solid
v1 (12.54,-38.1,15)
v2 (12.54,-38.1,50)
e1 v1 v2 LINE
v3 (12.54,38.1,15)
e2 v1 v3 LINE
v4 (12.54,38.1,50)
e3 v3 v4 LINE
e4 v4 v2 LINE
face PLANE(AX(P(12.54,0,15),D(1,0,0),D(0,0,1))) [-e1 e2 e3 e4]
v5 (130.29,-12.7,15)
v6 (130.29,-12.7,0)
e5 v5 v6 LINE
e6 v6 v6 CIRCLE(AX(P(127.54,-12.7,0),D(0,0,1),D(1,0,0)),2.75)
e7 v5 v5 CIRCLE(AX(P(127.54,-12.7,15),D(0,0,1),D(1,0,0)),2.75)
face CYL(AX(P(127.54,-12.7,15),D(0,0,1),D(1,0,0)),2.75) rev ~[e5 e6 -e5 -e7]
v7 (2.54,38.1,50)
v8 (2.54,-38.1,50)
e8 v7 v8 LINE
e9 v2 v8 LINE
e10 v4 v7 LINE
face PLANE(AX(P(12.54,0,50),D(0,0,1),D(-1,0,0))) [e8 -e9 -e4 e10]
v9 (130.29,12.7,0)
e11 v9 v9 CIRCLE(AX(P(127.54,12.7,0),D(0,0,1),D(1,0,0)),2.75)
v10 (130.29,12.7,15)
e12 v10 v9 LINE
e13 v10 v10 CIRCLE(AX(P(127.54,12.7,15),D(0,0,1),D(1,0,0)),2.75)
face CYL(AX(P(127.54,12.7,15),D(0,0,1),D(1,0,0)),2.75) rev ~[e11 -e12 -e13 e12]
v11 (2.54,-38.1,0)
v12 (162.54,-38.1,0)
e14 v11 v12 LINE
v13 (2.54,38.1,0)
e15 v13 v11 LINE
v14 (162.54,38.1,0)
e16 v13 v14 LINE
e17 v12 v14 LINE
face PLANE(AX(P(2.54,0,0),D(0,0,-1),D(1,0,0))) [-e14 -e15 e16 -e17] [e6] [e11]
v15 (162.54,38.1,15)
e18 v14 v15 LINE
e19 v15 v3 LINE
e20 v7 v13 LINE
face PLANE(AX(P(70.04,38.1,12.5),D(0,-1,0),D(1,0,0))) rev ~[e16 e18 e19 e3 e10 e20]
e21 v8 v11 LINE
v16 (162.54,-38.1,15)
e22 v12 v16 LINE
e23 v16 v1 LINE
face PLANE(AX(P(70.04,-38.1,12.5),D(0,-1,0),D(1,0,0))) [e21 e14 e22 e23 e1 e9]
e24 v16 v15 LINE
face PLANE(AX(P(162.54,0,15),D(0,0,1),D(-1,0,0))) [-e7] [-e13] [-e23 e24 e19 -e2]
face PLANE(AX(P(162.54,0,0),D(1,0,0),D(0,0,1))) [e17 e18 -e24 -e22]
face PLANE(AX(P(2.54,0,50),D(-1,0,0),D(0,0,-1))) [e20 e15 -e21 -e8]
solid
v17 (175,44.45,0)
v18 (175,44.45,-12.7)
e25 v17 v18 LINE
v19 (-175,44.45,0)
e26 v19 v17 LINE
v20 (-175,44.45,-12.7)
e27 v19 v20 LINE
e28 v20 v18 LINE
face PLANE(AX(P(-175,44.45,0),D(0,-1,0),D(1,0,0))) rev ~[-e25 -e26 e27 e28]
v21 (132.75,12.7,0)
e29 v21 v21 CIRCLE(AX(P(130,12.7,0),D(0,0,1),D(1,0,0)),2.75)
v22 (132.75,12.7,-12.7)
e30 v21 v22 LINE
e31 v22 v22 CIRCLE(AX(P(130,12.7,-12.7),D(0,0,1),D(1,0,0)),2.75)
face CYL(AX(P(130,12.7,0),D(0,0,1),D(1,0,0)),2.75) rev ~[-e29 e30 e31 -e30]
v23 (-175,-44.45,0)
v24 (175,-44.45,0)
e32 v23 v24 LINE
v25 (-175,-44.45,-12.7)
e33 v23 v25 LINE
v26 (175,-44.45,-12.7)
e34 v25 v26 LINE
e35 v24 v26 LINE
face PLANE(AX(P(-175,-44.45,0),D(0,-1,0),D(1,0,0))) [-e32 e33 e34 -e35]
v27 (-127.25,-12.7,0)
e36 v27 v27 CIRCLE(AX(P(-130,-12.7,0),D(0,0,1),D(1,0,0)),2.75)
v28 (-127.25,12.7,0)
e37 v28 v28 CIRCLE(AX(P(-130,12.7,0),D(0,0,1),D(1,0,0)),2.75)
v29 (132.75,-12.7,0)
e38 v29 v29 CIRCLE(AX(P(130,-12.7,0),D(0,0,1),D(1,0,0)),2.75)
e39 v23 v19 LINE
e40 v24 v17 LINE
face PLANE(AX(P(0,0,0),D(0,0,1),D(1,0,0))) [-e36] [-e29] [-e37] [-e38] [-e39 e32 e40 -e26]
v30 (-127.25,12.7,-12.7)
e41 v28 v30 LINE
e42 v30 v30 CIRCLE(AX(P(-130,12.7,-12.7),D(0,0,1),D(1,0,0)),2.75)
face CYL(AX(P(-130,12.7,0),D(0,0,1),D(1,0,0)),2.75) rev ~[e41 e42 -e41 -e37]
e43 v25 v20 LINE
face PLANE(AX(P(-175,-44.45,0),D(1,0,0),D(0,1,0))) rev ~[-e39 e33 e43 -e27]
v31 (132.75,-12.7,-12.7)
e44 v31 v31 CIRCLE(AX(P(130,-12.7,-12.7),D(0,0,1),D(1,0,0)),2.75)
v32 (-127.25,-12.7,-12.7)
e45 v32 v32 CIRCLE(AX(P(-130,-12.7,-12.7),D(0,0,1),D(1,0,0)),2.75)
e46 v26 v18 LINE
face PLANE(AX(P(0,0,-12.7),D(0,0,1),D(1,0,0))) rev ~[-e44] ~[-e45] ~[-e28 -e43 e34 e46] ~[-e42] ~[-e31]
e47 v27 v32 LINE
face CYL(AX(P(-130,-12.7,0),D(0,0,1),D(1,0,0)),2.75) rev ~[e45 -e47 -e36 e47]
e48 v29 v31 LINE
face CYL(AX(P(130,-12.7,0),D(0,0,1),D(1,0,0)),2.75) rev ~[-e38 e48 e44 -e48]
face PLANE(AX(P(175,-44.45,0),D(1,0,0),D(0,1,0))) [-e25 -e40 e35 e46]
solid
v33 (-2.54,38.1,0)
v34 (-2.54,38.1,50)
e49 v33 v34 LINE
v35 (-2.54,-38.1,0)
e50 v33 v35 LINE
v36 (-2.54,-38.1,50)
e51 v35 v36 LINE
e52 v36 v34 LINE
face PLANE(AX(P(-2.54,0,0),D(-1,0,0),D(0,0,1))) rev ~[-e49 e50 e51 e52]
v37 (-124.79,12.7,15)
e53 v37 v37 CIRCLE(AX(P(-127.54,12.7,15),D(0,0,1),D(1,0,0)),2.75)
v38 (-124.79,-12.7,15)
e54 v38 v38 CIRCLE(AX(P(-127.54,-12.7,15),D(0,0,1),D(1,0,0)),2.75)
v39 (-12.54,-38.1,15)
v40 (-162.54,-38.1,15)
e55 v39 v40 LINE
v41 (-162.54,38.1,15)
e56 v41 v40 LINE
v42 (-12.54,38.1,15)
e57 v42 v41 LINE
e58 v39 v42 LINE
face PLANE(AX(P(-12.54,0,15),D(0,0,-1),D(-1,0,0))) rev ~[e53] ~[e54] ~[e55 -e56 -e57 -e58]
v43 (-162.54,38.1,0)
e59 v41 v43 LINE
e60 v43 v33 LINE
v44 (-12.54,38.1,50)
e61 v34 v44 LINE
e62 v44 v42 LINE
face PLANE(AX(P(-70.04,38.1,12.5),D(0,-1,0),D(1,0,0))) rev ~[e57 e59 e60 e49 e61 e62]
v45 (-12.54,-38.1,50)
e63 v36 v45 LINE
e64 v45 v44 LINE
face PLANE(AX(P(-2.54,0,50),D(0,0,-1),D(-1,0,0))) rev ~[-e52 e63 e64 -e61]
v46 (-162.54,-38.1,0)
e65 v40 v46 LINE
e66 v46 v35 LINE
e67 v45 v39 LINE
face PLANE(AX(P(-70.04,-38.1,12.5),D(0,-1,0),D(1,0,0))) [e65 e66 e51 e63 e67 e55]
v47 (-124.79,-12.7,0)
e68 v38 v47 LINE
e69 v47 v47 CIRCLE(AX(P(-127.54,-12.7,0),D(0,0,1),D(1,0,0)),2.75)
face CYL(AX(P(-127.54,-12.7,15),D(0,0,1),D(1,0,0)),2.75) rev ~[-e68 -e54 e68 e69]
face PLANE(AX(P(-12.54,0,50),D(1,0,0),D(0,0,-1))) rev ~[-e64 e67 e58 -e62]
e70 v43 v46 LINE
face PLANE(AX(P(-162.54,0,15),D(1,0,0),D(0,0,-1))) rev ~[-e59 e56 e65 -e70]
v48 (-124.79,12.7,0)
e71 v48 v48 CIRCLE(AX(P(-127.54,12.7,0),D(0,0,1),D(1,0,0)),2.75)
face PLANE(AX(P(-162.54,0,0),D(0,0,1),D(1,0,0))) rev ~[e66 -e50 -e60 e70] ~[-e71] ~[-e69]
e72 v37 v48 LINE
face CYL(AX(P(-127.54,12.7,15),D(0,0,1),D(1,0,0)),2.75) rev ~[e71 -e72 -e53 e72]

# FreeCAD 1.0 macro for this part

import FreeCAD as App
import Part
import Sketcher
from FreeCAD import Vector


def add_polygon(sketch, points):
    """Adds a closed chain of lines whose ends are joined by coincident constraints."""
    first, n = sketch.GeometryCount, len(points)
    for a, b in zip(points, points[1:] + points[:1]):
        sketch.addGeometry(Part.LineSegment(App.Vector(*a, 0), App.Vector(*b, 0)), False)
    for i in range(n):
        sketch.addConstraint(Sketcher.Constraint("Coincident", first + i, 2, first + (i + 1) % n, 1))

doc = App.newDocument("Part")
body = doc.addObject("PartDesign::Body", "Body")
body.AllowCompound = True

sketch1 = body.newObject("Sketcher::SketchObject", "Sketch")
sketch1.AttachmentSupport = (doc.getObject("XZ_Plane"), [""])
sketch1.MapMode = "FlatFace"
add_polygon(sketch1, [(-13, 15), (-163, 15), (-163, 0), (-3, 0), (-3, 50), (-13, 50)])
add_polygon(sketch1, [(13, 15), (13, 50), (3, 50), (3, 0), (163, 0), (163, 15)])
sketch1.addConstraint(Sketcher.Constraint("Horizontal", 0))
sketch1.addConstraint(Sketcher.Constraint("Vertical", 1))
sketch1.addConstraint(Sketcher.Constraint("Horizontal", 2))
sketch1.addConstraint(Sketcher.Constraint("Vertical", 3))
sketch1.addConstraint(Sketcher.Constraint("Horizontal", 4))
sketch1.addConstraint(Sketcher.Constraint("Vertical", 5))
sketch1.addConstraint(Sketcher.Constraint("Vertical", 6))
sketch1.addConstraint(Sketcher.Constraint("Horizontal", 7))
sketch1.addConstraint(Sketcher.Constraint("Vertical", 8))
sketch1.addConstraint(Sketcher.Constraint("Horizontal", 9))
sketch1.addConstraint(Sketcher.Constraint("Vertical", 10))
sketch1.addConstraint(Sketcher.Constraint("Horizontal", 11))
sketch1.addConstraint(Sketcher.Constraint("Symmetric", 2, 2, 8, 2, -1, 1))
sketch1.addConstraint(Sketcher.Constraint("Symmetric", 4, 2, 6, 2, -2))
sketch1.addConstraint(Sketcher.Constraint("Symmetric", 1, 2, 9, 2, -2))
sketch1.addConstraint(Sketcher.Constraint("Horizontal", 5, 2, 10, 2))
sketch1.addConstraint(Sketcher.Constraint("DistanceX", 0, 2, 0, 1, 150.0))
sketch1.addConstraint(Sketcher.Constraint("DistanceX", 2, 1, 2, 2, 160.0))
sketch1.addConstraint(Sketcher.Constraint("DistanceY", 1, 2, 1, 1, 15.0))
sketch1.addConstraint(Sketcher.Constraint("DistanceY", 3, 1, 3, 2, 50.0))
sketch1.addConstraint(Sketcher.Constraint("DistanceX", 0, 2, -1, 1, 162.54))
pad1 = body.newObject("PartDesign::Pad", "Pad")
pad1.Profile = sketch1
pad1.Length = 76.2
pad1.Midplane = True

sketch2 = body.newObject("Sketcher::SketchObject", "Sketch001")
sketch2.AttachmentSupport = (doc.getObject("XY_Plane"), [""])
sketch2.MapMode = "FlatFace"
sketch2.AttachmentOffset = App.Placement(Vector(0, 0, 15), App.Rotation())
sketch2.addGeometry(Part.Circle(Vector(-127.5, -12.7, 0), Vector(0, 0, 1), 2.8), False)
sketch2.addGeometry(Part.Circle(Vector(127.5, -12.7, 0), Vector(0, 0, 1), 2.8), False)
sketch2.addGeometry(Part.Circle(Vector(127.5, 12.7, 0), Vector(0, 0, 1), 2.8), False)
sketch2.addGeometry(Part.Circle(Vector(-127.5, 12.7, 0), Vector(0, 0, 1), 2.8), False)
sketch2.addConstraint(Sketcher.Constraint("Equal", 0, 1))
sketch2.addConstraint(Sketcher.Constraint("Equal", 1, 2))
sketch2.addConstraint(Sketcher.Constraint("Equal", 2, 3))
sketch2.addConstraint(Sketcher.Constraint("Symmetric", 0, 3, 2, 3, -1, 1))
sketch2.addConstraint(Sketcher.Constraint("Symmetric", 1, 3, 3, 3, -1, 1))
sketch2.addConstraint(Sketcher.Constraint("Symmetric", 0, 3, 1, 3, -2))
sketch2.addConstraint(Sketcher.Constraint("Diameter", 0, 5.5))
sketch2.addConstraint(Sketcher.Constraint("DistanceY", 0, 3, -1, 1, 12.7))
sketch2.addConstraint(Sketcher.Constraint("DistanceX", 0, 3, -1, 1, 127.54))
pocket1 = body.newObject("PartDesign::Pocket", "Pocket")
pocket1.Profile = sketch2
pocket1.Type = "ThroughAll"
body2 = doc.addObject("PartDesign::Body", "Body001")

sketch3 = body2.newObject("Sketcher::SketchObject", "Sketch002")
sketch3.AttachmentSupport = (doc.getObject("XY_Plane001"), [""])
sketch3.MapMode = "FlatFace"
add_polygon(sketch3, [(-175, 44.5), (-175, -44.5), (175, -44.5), (175, 44.5)])
sketch3.addGeometry(Part.Circle(Vector(-130, -12.7, 0), Vector(0, 0, 1), 2.8), False)
sketch3.addGeometry(Part.Circle(Vector(130, -12.7, 0), Vector(0, 0, 1), 2.8), False)
sketch3.addGeometry(Part.Circle(Vector(-130, 12.7, 0), Vector(0, 0, 1), 2.8), False)
sketch3.addGeometry(Part.Circle(Vector(130, 12.7, 0), Vector(0, 0, 1), 2.8), False)
sketch3.addConstraint(Sketcher.Constraint("Vertical", 0))
sketch3.addConstraint(Sketcher.Constraint("Horizontal", 1))
sketch3.addConstraint(Sketcher.Constraint("Vertical", 2))
sketch3.addConstraint(Sketcher.Constraint("Horizontal", 3))
sketch3.addConstraint(Sketcher.Constraint("Equal", 4, 5))
sketch3.addConstraint(Sketcher.Constraint("Equal", 5, 6))
sketch3.addConstraint(Sketcher.Constraint("Equal", 6, 7))
sketch3.addConstraint(Sketcher.Constraint("Symmetric", 5, 3, 6, 3, -1, 1))
sketch3.addConstraint(Sketcher.Constraint("Symmetric", 4, 3, 7, 3, -1, 1))
sketch3.addConstraint(Sketcher.Constraint("Symmetric", 0, 2, 2, 2, -1, 1))
sketch3.addConstraint(Sketcher.Constraint("Symmetric", 4, 3, 5, 3, -2))
sketch3.addConstraint(Sketcher.Constraint("Diameter", 4, 5.5))
sketch3.addConstraint(Sketcher.Constraint("DistanceX", 1, 1, 1, 2, 350.0))
sketch3.addConstraint(Sketcher.Constraint("DistanceY", 0, 2, 0, 1, 88.9))
sketch3.addConstraint(Sketcher.Constraint("DistanceX", 4, 3, -1, 1, 130.0))
sketch3.addConstraint(Sketcher.Constraint("DistanceY", 4, 3, -1, 1, 12.7))
pad2 = body2.newObject("PartDesign::Pad", "Pad001")
pad2.Profile = sketch3
pad2.Length = 12.7
pad2.Reversed = True

doc.recompute()
